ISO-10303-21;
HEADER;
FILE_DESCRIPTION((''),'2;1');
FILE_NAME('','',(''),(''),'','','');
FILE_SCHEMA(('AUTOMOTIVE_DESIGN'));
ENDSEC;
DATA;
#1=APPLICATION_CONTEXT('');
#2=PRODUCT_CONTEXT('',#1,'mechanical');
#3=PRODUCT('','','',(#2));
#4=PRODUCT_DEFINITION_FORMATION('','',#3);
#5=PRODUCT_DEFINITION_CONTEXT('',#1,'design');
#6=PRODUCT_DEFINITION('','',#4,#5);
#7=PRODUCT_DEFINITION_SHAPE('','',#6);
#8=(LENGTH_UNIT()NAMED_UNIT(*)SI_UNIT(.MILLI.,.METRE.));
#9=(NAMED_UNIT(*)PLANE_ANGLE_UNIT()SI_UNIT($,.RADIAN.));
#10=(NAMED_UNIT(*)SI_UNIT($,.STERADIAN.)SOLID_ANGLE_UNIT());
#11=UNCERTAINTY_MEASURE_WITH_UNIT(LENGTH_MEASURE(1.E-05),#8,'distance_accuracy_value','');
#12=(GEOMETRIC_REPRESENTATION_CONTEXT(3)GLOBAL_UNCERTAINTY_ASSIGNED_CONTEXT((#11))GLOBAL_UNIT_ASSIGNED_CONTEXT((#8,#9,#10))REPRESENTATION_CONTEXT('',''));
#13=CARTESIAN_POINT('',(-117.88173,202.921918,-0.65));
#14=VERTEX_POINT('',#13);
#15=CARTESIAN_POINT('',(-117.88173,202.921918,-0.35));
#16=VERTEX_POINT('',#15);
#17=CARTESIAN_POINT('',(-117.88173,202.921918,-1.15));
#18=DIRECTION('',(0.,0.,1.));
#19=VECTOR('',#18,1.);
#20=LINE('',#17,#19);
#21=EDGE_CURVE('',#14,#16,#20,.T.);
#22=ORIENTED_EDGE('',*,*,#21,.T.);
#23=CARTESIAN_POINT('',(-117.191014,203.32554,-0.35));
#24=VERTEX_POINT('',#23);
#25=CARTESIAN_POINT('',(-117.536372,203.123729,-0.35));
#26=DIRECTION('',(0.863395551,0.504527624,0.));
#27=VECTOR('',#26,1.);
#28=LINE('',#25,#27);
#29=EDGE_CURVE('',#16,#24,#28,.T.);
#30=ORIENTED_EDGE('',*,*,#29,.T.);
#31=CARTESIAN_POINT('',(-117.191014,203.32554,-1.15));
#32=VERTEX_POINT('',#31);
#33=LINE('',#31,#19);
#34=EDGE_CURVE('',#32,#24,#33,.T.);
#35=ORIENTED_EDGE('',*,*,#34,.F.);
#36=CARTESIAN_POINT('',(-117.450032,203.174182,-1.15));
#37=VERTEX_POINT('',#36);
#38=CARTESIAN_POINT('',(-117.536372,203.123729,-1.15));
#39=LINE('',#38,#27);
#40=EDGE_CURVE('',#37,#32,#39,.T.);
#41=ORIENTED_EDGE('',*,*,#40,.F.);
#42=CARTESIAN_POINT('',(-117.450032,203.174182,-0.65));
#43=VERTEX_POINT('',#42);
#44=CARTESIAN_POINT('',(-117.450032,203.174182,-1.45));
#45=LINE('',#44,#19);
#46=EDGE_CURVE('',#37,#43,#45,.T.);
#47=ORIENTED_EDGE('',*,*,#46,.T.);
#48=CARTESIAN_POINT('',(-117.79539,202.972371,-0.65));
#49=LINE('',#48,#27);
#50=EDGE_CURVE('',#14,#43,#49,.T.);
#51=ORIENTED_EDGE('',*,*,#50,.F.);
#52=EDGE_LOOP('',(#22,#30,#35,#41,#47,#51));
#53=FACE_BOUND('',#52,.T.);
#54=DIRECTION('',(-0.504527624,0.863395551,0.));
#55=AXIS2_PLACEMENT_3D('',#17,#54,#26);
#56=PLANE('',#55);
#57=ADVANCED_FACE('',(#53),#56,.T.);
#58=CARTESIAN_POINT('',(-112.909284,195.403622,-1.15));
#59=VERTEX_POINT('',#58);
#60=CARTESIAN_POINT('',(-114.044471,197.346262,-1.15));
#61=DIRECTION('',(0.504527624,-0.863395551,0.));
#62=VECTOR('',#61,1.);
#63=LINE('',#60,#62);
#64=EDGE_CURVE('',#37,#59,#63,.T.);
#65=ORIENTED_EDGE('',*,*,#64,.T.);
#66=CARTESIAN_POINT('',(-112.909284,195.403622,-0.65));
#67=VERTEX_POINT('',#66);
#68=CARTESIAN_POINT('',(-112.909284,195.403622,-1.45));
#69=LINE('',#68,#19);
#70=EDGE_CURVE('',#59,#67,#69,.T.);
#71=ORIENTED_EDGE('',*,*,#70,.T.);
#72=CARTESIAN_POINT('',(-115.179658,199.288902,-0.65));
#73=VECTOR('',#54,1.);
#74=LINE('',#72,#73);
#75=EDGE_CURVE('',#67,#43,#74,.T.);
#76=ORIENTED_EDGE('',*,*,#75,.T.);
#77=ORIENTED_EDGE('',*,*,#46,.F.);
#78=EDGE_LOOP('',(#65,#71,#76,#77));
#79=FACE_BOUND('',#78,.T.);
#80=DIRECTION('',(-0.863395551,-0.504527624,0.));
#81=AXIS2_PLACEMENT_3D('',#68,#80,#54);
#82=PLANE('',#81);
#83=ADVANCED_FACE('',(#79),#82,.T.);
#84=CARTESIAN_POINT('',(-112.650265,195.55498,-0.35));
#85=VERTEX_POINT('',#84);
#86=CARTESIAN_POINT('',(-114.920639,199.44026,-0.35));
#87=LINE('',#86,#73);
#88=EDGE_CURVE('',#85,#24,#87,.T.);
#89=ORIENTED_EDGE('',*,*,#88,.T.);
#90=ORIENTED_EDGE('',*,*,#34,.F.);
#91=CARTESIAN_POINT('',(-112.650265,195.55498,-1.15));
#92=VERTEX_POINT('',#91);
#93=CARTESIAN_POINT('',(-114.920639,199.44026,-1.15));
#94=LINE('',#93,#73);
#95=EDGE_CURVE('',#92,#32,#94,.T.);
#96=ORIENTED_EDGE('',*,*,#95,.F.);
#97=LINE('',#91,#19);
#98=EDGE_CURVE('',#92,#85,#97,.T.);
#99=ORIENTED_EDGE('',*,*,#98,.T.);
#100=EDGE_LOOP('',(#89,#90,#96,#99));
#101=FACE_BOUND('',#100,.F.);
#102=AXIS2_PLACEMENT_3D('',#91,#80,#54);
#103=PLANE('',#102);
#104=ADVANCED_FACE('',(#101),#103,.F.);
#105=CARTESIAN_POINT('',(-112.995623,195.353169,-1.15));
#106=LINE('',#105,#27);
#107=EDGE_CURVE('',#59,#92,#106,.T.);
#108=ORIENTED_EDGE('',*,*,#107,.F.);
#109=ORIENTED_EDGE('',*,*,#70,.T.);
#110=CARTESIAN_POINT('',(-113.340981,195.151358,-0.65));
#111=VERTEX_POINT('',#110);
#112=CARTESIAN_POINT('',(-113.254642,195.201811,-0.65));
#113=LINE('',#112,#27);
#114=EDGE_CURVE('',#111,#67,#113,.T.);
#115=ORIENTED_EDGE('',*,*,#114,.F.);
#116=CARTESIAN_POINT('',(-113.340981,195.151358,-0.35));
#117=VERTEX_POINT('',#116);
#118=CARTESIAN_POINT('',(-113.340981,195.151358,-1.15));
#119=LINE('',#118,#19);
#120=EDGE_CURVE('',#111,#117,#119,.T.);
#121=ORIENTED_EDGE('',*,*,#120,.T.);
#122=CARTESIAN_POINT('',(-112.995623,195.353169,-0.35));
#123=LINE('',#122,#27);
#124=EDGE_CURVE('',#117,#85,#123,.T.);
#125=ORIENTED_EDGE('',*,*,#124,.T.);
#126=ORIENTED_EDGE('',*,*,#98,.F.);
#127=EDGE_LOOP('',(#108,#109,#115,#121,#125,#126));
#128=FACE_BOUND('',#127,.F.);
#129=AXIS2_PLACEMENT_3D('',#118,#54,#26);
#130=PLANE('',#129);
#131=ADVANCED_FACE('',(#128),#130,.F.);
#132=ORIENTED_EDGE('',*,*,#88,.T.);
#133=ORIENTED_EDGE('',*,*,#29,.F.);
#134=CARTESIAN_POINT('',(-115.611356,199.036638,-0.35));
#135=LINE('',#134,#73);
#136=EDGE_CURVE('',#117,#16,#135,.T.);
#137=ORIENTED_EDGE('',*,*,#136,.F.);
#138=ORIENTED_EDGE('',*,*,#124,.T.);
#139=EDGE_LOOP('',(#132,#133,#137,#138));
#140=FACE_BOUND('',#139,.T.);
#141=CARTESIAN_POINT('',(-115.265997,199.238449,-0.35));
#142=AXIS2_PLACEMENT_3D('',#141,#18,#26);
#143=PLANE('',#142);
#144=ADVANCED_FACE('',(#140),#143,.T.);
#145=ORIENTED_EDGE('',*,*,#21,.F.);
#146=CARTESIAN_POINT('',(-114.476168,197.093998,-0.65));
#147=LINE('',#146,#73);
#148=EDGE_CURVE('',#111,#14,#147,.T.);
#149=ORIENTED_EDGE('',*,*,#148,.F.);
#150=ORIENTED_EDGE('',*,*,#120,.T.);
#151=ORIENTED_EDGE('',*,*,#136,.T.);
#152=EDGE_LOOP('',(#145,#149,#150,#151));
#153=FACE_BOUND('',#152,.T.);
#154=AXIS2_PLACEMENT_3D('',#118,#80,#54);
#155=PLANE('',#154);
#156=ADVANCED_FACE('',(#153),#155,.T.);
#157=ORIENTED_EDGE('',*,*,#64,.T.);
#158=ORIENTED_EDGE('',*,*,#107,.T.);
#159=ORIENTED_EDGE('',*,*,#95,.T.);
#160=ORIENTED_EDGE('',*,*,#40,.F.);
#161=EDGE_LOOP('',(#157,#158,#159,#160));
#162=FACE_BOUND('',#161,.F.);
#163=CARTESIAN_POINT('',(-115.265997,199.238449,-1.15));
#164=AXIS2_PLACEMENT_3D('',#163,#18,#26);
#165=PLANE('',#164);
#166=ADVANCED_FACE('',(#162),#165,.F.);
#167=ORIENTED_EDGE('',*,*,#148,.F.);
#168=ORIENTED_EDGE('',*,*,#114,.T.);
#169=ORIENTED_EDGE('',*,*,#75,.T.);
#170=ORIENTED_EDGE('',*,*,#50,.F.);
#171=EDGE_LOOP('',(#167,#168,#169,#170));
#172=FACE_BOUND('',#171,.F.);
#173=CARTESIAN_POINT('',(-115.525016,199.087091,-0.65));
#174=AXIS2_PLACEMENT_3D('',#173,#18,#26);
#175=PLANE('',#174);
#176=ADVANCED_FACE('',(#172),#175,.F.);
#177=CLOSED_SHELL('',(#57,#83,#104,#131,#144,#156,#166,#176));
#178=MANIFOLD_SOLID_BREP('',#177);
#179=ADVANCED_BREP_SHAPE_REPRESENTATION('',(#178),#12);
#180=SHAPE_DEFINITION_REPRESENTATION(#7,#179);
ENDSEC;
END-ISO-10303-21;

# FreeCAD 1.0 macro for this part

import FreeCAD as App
import Part
import Sketcher

V = App.Vector


def add_polygon(sketch, points):
    """Adds a closed chain of lines whose ends are joined by coincident constraints."""
    first, n = sketch.GeometryCount, len(points)
    for a, b in zip(points, points[1:] + points[:1]):
        sketch.addGeometry(Part.LineSegment(App.Vector(*a, 0), App.Vector(*b, 0)), False)
    for i in range(n):
        sketch.addConstraint(Sketcher.Constraint("Coincident", first + i, 2, first + (i + 1) % n, 1))

doc = App.newDocument("Part")
body = doc.addObject("PartDesign::Body", "Body")

# Sketch on XY plane
sketch1 = body.newObject("Sketcher::SketchObject", "Sketch")
sketch1.AttachmentSupport = (doc.getObject("XY_Plane"), [""])
sketch1.MapMode = "FlatFace"
add_polygon(sketch1, [(0, 9), (0, 0), (0.8, 0), (0.8, 9)])  # lines 0-3
sketch1.addConstraint([
    Sketcher.Constraint("Vertical", 0),
    Sketcher.Constraint("Horizontal", 1),
    Sketcher.Constraint("Vertical", 2),
    Sketcher.Constraint("Horizontal", 3),
    Sketcher.Constraint("Coincident", 0, 2, -1, 1),
    Sketcher.Constraint("DistanceY", 0, 2, 0, 1, 9.0),
    Sketcher.Constraint("DistanceX", 1, 1, 1, 2, 0.8),
])
pad1 = body.newObject("PartDesign::Pad", "Pad")
pad1.Profile = sketch1
pad1.Length = 0.8
body2 = doc.addObject("PartDesign::Body", "Body001")

# Sketch on XY plane
sketch2 = body2.newObject("Sketcher::SketchObject", "Sketch001")
sketch2.AttachmentSupport = (doc.getObject("XY_Plane001"), [""])
sketch2.MapMode = "FlatFace"
sketch2.AttachmentOffset = App.Placement(V(0, 0, 0.3), App.Rotation())
add_polygon(sketch2, [(0.3, 9), (0.3, 0), (1.1, 0), (1.1, 9)])  # lines 0-3
sketch2.addConstraint([
    Sketcher.Constraint("Vertical", 0),
    Sketcher.Constraint("Horizontal", 1),
    Sketcher.Constraint("Vertical", 2),
    Sketcher.Constraint("Horizontal", 3),
    Sketcher.Constraint("PointOnObject", 0, 2, -1),
    Sketcher.Constraint("DistanceY", 0, 2, 0, 1, 9.0),
    Sketcher.Constraint("DistanceX", 1, 1, 1, 2, 0.8),
    Sketcher.Constraint("DistanceX", -1, 1, 0, 2, 0.3),
])
pad2 = body2.newObject("PartDesign::Pad", "Pad001")
pad2.Profile = sketch2
pad2.Length = 0.8
doc.recompute()

boolean = body2.newObject("PartDesign::Boolean", "Boolean")
boolean.Type = "Cut"
boolean.addObjects([body])
body3 = doc.addObject("PartDesign::Body", "Body002")
doc.recompute()

body2.Placement = App.Placement(V(-113.6, 195, -1.45), App.Rotation(V(0, 0, 1), 30.3))
boolean2 = body3.newObject("PartDesign::Boolean", "Boolean001")
boolean2.Type = "Fuse"
boolean2.addObjects([body2])

doc.recompute()
